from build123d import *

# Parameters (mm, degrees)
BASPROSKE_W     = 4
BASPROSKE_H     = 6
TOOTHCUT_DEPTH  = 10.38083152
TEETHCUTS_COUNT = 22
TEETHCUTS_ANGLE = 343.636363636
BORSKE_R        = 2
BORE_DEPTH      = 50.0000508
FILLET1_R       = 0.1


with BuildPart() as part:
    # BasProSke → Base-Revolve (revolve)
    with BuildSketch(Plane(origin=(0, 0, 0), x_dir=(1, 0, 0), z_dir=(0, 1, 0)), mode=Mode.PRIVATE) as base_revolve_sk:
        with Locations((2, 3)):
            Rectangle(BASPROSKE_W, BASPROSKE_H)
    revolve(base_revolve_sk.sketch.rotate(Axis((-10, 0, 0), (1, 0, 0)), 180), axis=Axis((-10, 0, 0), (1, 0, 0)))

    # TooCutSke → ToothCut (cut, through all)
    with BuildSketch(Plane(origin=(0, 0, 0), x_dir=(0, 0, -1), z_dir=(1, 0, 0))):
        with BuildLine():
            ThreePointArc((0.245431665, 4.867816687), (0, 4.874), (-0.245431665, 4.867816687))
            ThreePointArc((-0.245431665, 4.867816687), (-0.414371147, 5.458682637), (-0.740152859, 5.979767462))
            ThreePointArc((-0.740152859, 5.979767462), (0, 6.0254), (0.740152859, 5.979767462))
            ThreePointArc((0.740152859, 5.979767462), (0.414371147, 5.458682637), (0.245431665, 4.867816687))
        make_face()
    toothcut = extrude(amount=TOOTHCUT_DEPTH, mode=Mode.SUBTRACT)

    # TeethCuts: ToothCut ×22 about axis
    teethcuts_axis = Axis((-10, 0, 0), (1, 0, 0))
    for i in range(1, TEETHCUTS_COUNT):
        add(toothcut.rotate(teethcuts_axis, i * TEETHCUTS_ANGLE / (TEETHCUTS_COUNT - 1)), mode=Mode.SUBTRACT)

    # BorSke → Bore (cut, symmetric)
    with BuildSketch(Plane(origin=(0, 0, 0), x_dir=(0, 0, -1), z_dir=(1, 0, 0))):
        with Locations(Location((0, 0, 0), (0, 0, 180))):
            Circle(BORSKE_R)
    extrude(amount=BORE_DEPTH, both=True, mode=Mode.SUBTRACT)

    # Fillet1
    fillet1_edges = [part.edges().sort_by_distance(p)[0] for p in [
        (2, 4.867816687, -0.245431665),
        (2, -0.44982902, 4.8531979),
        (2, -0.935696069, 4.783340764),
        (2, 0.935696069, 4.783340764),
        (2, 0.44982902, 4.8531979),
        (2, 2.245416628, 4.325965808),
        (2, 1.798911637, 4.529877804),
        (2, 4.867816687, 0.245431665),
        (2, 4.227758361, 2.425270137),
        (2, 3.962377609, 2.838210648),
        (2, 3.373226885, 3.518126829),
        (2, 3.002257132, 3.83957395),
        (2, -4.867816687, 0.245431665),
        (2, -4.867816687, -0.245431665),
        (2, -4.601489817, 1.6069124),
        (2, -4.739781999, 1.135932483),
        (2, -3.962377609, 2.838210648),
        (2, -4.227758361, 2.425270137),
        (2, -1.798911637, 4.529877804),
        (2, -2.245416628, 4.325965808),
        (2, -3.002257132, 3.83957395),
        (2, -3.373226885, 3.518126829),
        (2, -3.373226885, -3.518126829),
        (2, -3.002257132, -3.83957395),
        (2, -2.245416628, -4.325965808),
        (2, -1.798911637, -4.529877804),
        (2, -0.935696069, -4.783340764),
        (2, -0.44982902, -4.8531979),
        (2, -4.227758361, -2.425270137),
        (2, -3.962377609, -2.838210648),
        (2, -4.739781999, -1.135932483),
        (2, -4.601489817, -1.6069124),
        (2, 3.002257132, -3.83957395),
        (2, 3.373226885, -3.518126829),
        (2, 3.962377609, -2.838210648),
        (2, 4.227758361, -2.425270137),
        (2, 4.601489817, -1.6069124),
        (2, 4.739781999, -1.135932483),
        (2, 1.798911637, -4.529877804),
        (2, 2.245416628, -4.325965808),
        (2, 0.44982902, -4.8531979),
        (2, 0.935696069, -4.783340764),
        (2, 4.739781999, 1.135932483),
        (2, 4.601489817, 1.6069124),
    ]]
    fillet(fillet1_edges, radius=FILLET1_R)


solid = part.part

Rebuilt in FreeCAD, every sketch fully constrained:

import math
import FreeCAD as App
import Part
import Sketcher

V = App.Vector


def edges_at(feature, points):
    """Names of the edges that pass closest to the given points."""
    edges = feature.Shape.Edges
    near = lambda p: min(range(len(edges)), key=lambda i: edges[i].distToShape(Part.Vertex(*p))[0])
    return sorted({f"Edge{near(p) + 1}" for p in points})


def add_polygon(sketch, points):
    """Adds a closed chain of lines whose ends are joined by coincident constraints."""
    first, n = sketch.GeometryCount, len(points)
    for a, b in zip(points, points[1:] + points[:1]):
        sketch.addGeometry(Part.LineSegment(App.Vector(*a, 0), App.Vector(*b, 0)), False)
    for i in range(n):
        sketch.addConstraint(Sketcher.Constraint("Coincident", first + i, 2, first + (i + 1) % n, 1))

doc = App.newDocument("Part")
params = doc.addObject("Spreadsheet::Sheet", "Params")
for row, (alias, value) in enumerate([
    ("sketch1_width", "4 mm"),
    ("sketch1_height", "6 mm"),
    ("revolution_angle", "360 deg"),
    ("sketch2_radius", "2.2 mm"),
    ("sketch3_diameter", "4 mm"),
    ("pocket2_length", "100.000102 mm"),
    ("fillet_radius", "0.1 mm"),
], start=1):
    params.set(f"A{row}", alias)
    params.set(f"B{row}", "=" + value)
    params.setAlias(f"B{row}", alias)

body = doc.addObject("PartDesign::Body", "Body")

sketch1 = body.newObject("Sketcher::SketchObject", "Sketch")
sketch1.AttachmentSupport = (doc.getObject("XZ_Plane"), [""])
sketch1.MapMode = "FlatFace"
add_polygon(sketch1, [(0, -6), (0, 0), (4, 0), (4, -6)])
sketch1.addConstraint(Sketcher.Constraint("Vertical", 0))
sketch1.addConstraint(Sketcher.Constraint("Horizontal", 1))
sketch1.addConstraint(Sketcher.Constraint("Vertical", 2))
sketch1.addConstraint(Sketcher.Constraint("Horizontal", 3))
sketch1.addConstraint(Sketcher.Constraint("Coincident", 0, 2, -1, 1))
sketch1.addConstraint(Sketcher.Constraint("DistanceX", 1, 1, 1, 2, 4.0))
sketch1.addConstraint(Sketcher.Constraint("DistanceY", 0, 1, 0, 2, 6.0))
sketch1.setExpression("Constraints[9]", "Params.sketch1_width")
sketch1.setExpression("Constraints[10]", "Params.sketch1_height")
revolution = body.newObject("PartDesign::Revolution", "Revolution")
revolution.Profile = sketch1
revolution.ReferenceAxis = (sketch1, ["H_Axis"])
revolution.setExpression("Angle", "Params.revolution_angle")

sketch2 = body.newObject("Sketcher::SketchObject", "Sketch001")
sketch2.AttachmentSupport = (doc.getObject("YZ_Plane"), [""])
sketch2.MapMode = "FlatFace"
sketch2.addGeometry(Part.ArcOfCircle(Part.Circle(V(0, 0, 0), V(0, 0, 1), 4.874), math.radians(-2.886366), math.radians(2.886366)), False)
sketch2.addGeometry(Part.ArcOfCircle(Part.Circle(V(4.564392, -2.424407, 0), V(0, 0, 1), 2.2), math.radians(49.957733), math.radians(82.072475)), False)
sketch2.addGeometry(Part.ArcOfCircle(Part.Circle(V(0, 0, 0), V(0, 0, 1), 6.0254), math.radians(-7.055966), math.radians(7.055966)), False)
sketch2.addGeometry(Part.ArcOfCircle(Part.Circle(V(4.564392, 2.424407, 0), V(0, 0, 1), 2.2), math.radians(-82.072475), math.radians(-49.957733)), False)
sketch2.addConstraint(Sketcher.Constraint("Coincident", 0, 1, 1, 2))
sketch2.addConstraint(Sketcher.Constraint("Coincident", 1, 1, 2, 1))
sketch2.addConstraint(Sketcher.Constraint("Coincident", 2, 2, 3, 2))
sketch2.addConstraint(Sketcher.Constraint("Coincident", 3, 1, 0, 2))
sketch2.addConstraint(Sketcher.Constraint("Coincident", 0, 3, -1, 1))
sketch2.addConstraint(Sketcher.Constraint("Coincident", 2, 3, -1, 1))
sketch2.addConstraint(Sketcher.Constraint("Equal", 1, 3))
sketch2.addConstraint(Sketcher.Constraint("Symmetric", 1, 3, 3, 3, -1))
sketch2.addConstraint(Sketcher.Constraint("Radius", 1, 2.2))
sketch2.addConstraint(Sketcher.Constraint("Radius", 0, 4.874))
sketch2.addConstraint(Sketcher.Constraint("Radius", 2, 6.0254))
sketch2.addConstraint(Sketcher.Constraint("DistanceX", -1, 1, 1, 3, 4.564392))
sketch2.addConstraint(Sketcher.Constraint("DistanceY", 0, 1, -1, 1, 0.245432))
sketch2.setExpression("Constraints[8]", "Params.sketch2_radius")
pocket1 = body.newObject("PartDesign::Pocket", "Pocket")
pocket1.Profile = sketch2
pocket1.Type = "ThroughAll"
pocket1.Reversed = True
doc.recompute()

polarpattern = body.newObject("PartDesign::PolarPattern", "PolarPattern")
polarpattern.Originals = [pocket1]
polarpattern.Axis = (doc.getObject("X_Axis"), [""])
polarpattern.Angle = 360
polarpattern.Occurrences = 22
body.Tip = polarpattern

sketch3 = body.newObject("Sketcher::SketchObject", "Sketch002")
sketch3.AttachmentSupport = (doc.getObject("YZ_Plane"), [""])
sketch3.MapMode = "FlatFace"
sketch3.addGeometry(Part.Circle(V(0, 0, 0), V(0, 0, 1), 2), False)
sketch3.addConstraint(Sketcher.Constraint("Coincident", 0, 3, -1, 1))
sketch3.addConstraint(Sketcher.Constraint("Diameter", 0, 4.0))
sketch3.setExpression("Constraints[1]", "Params.sketch3_diameter")
pocket2 = body.newObject("PartDesign::Pocket", "Pocket001")
pocket2.Profile = sketch3
pocket2.setExpression("Length", "Params.pocket2_length")
pocket2.Midplane = True
doc.recompute()

fillet = body.newObject("PartDesign::Fillet", "Fillet")
fillet.Base = (pocket2, edges_at(pocket2, [
    (2, 4.868, -0.245),
    (2, -0.45, 4.853),
    (2, -0.936, 4.783),
    (2, 0.936, 4.783),
    (2, 0.45, 4.853),
    (2, 2.245, 4.326),
    (2, 1.799, 4.53),
    (2, 4.868, 0.245),
    (2, 4.228, 2.425),
    (2, 3.962, 2.838),
    (2, 3.373, 3.518),
    (2, 3.002, 3.84),
    (2, -4.868, 0.245),
    (2, -4.868, -0.245),
    (2, -4.601, 1.607),
    (2, -4.74, 1.136),
    (2, -3.962, 2.838),
    (2, -4.228, 2.425),
    (2, -1.799, 4.53),
    (2, -2.245, 4.326),
    (2, -3.002, 3.84),
    (2, -3.373, 3.518),
    (2, -3.373, -3.518),
    (2, -3.002, -3.84),
    (2, -2.245, -4.326),
    (2, -1.799, -4.53),
    (2, -0.936, -4.783),
    (2, -0.45, -4.853),
    (2, -4.228, -2.425),
    (2, -3.962, -2.838),
    (2, -4.74, -1.136),
    (2, -4.601, -1.607),
    (2, 3.002, -3.84),
    (2, 3.373, -3.518),
    (2, 3.962, -2.838),
    (2, 4.228, -2.425),
    (2, 4.601, -1.607),
    (2, 4.74, -1.136),
    (2, 1.799, -4.53),
    (2, 2.245, -4.326),
    (2, 0.45, -4.853),
    (2, 0.936, -4.783),
    (2, 4.74, 1.136),
    (2, 4.601, 1.607),
]))
fillet.setExpression("Radius", "Params.fillet_radius")

doc.recompute()
